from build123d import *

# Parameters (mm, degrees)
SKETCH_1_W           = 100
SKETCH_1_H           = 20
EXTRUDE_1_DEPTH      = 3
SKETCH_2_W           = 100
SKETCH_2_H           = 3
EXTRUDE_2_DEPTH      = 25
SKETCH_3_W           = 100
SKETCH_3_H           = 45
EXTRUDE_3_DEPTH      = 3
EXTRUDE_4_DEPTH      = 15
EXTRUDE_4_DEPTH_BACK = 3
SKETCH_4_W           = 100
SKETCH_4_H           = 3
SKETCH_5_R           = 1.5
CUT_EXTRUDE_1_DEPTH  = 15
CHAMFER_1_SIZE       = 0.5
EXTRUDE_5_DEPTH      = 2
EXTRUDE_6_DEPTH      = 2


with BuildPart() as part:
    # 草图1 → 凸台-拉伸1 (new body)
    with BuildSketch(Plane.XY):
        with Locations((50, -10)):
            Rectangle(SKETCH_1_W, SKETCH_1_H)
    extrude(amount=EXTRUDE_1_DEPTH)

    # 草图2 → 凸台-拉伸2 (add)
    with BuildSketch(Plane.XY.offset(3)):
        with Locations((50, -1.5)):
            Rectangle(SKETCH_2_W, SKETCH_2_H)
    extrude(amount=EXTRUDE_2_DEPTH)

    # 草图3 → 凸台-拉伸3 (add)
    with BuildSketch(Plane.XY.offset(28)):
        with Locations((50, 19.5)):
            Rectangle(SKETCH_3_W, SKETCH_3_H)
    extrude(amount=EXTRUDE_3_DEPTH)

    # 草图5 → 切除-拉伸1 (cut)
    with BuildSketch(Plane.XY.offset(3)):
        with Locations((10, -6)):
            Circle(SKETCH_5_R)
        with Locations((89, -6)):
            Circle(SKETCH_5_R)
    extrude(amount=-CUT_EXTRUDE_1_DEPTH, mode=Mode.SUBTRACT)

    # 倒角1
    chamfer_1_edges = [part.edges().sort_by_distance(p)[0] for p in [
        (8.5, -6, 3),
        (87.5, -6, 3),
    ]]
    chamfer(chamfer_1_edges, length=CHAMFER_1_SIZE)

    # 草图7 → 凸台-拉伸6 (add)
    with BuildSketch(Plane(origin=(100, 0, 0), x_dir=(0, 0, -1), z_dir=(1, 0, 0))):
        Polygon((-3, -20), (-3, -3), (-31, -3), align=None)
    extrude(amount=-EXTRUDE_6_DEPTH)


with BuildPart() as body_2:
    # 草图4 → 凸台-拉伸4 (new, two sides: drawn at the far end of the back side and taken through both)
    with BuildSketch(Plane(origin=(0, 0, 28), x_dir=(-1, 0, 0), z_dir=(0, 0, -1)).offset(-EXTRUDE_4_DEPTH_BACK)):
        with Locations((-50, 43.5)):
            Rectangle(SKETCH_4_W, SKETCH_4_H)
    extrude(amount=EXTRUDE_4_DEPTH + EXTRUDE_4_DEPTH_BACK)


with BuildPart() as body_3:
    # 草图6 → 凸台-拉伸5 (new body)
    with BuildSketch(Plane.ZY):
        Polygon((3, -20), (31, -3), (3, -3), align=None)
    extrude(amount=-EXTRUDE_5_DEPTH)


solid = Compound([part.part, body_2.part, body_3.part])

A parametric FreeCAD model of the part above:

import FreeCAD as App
import Part
import Sketcher
from FreeCAD import Vector
Q = App.Units.Quantity


def edges_at(feature, points):
    """Names of the edges that pass closest to the given points."""
    edges = feature.Shape.Edges
    near = lambda p: min(range(len(edges)), key=lambda i: edges[i].distToShape(Part.Vertex(*p))[0])
    return sorted({f"Edge{near(p) + 1}" for p in points})


def add_polygon(sketch, points):
    """Adds a closed chain of lines whose ends are joined by coincident constraints."""
    first, n = sketch.GeometryCount, len(points)
    for a, b in zip(points, points[1:] + points[:1]):
        sketch.addGeometry(Part.LineSegment(App.Vector(*a, 0), App.Vector(*b, 0)), False)
    for i in range(n):
        sketch.addConstraint(Sketcher.Constraint("Coincident", first + i, 2, first + (i + 1) % n, 1))

doc = App.newDocument("Part")
body = doc.addObject("PartDesign::Body", "Body")

sketch1 = body.newObject("Sketcher::SketchObject", "Sketch")
sketch1.AttachmentSupport = (doc.getObject("XY_Plane"), [""])
sketch1.MapMode = "FlatFace"
add_polygon(sketch1, [(0, 0), (0, -20), (100, -20), (100, 0)])
sketch1.addConstraint([
    Sketcher.Constraint("Vertical", 0),
    Sketcher.Constraint("Horizontal", 1),
    Sketcher.Constraint("Vertical", 2),
    Sketcher.Constraint("Horizontal", 3),
    Sketcher.Constraint("Coincident", 3, 2, -1, 1),
    Sketcher.Constraint("DistanceX", 1, 1, 1, 2, Q("100 mm")),
    Sketcher.Constraint("DistanceY", 0, 2, 0, 1, Q("20 mm")),
])
pad1 = body.newObject("PartDesign::Pad", "Pad")
pad1.Profile = sketch1
pad1.Length = 3

sketch2 = body.newObject("Sketcher::SketchObject", "Sketch001")
sketch2.AttachmentSupport = (doc.getObject("XY_Plane"), [""])
sketch2.MapMode = "FlatFace"
sketch2.AttachmentOffset = App.Placement(Vector(0, 0, 3), App.Rotation())
add_polygon(sketch2, [(0, 0), (0, -3), (100, -3), (100, 0)])
sketch2.addConstraint([
    Sketcher.Constraint("Vertical", 0),
    Sketcher.Constraint("Horizontal", 1),
    Sketcher.Constraint("Vertical", 2),
    Sketcher.Constraint("Horizontal", 3),
    Sketcher.Constraint("Coincident", 3, 2, -1, 1),
    Sketcher.Constraint("DistanceX", 1, 1, 1, 2, Q("100 mm")),
    Sketcher.Constraint("DistanceY", 0, 2, 0, 1, Q("3 mm")),
])
pad2 = body.newObject("PartDesign::Pad", "Pad001")
pad2.Profile = sketch2
pad2.Length = 25

sketch3 = body.newObject("Sketcher::SketchObject", "Sketch002")
sketch3.AttachmentSupport = (doc.getObject("XY_Plane"), [""])
sketch3.MapMode = "FlatFace"
sketch3.AttachmentOffset = App.Placement(Vector(0, 0, 28), App.Rotation())
add_polygon(sketch3, [(0, 42), (0, -3), (100, -3), (100, 42)])
sketch3.addConstraint([
    Sketcher.Constraint("Vertical", 0),
    Sketcher.Constraint("Horizontal", 1),
    Sketcher.Constraint("Vertical", 2),
    Sketcher.Constraint("Horizontal", 3),
    Sketcher.Constraint("PointOnObject", 0, 2, -2),
    Sketcher.Constraint("DistanceX", 1, 1, 1, 2, Q("100 mm")),
    Sketcher.Constraint("DistanceY", 0, 2, 0, 1, Q("45 mm")),
    Sketcher.Constraint("DistanceY", 0, 2, -1, 1, Q("3 mm")),
])
pad3 = body.newObject("PartDesign::Pad", "Pad002")
pad3.Profile = sketch3
pad3.Length = 3

sketch4 = body.newObject("Sketcher::SketchObject", "Sketch003")
sketch4.AttachmentSupport = (doc.getObject("XY_Plane"), [""])
sketch4.MapMode = "FlatFace"
sketch4.AttachmentOffset = App.Placement(Vector(0, 0, 3), App.Rotation())
sketch4.addGeometry([
    Part.Circle(Vector(10, -6, 0), Vector(0, 0, 1), 1.5),
    Part.Circle(Vector(89, -6, 0), Vector(0, 0, 1), 1.5),
], False)
sketch4.addConstraint([
    Sketcher.Constraint("Equal", 0, 1),
    Sketcher.Constraint("Horizontal", 0, 3, 1, 3),
    Sketcher.Constraint("Diameter", 0, Q("3 mm")),
    Sketcher.Constraint("DistanceX", -1, 1, 0, 3, Q("10 mm")),
    Sketcher.Constraint("DistanceY", 0, 3, -1, 1, Q("6 mm")),
    Sketcher.Constraint("DistanceX", -1, 1, 1, 3, Q("89 mm")),
])
pocket1 = body.newObject("PartDesign::Pocket", "Pocket")
pocket1.Profile = sketch4
pocket1.Length = 15
doc.recompute()

chamfer = body.newObject("PartDesign::Chamfer", "Chamfer")
chamfer.Base = (pocket1, edges_at(pocket1, [(8.5, -6, 3), (87.5, -6, 3)]))
chamfer.Size = 0.5

sketch5 = body.newObject("Sketcher::SketchObject", "Sketch004")
sketch5.AttachmentSupport = (doc.getObject("YZ_Plane"), [""])
sketch5.MapMode = "FlatFace"
sketch5.AttachmentOffset = App.Placement(Vector(0, 0, 100), App.Rotation())
add_polygon(sketch5, [(-20, 3), (-3, 3), (-3, 31)])
sketch5.addConstraint([
    Sketcher.Constraint("Horizontal", 0),
    Sketcher.Constraint("Vertical", 1),
    Sketcher.Constraint("DistanceX", 0, 1, 0, 2, Q("17 mm")),
    Sketcher.Constraint("DistanceY", 1, 1, 1, 2, Q("28 mm")),
    Sketcher.Constraint("DistanceX", 0, 2, -1, 1, Q("3 mm")),
    Sketcher.Constraint("DistanceY", -1, 1, 0, 2, Q("3 mm")),
])
pad4 = body.newObject("PartDesign::Pad", "Pad003")
pad4.Profile = sketch5
pad4.Length = 2
pad4.Reversed = True
body2 = doc.addObject("PartDesign::Body", "Body001")

sketch6 = body2.newObject("Sketcher::SketchObject", "Sketch005")
sketch6.AttachmentSupport = (doc.getObject("XY_Plane001"), [""])
sketch6.MapMode = "FlatFace"
sketch6.AttachmentOffset = App.Placement(Vector(0, 0, 28), App.Rotation())
add_polygon(sketch6, [(100, 45), (100, 42), (0, 42), (0, 45)])
sketch6.addConstraint([
    Sketcher.Constraint("Vertical", 0),
    Sketcher.Constraint("Horizontal", 1),
    Sketcher.Constraint("Vertical", 2),
    Sketcher.Constraint("Horizontal", 3),
    Sketcher.Constraint("PointOnObject", 1, 2, -2),
    Sketcher.Constraint("DistanceX", 1, 2, 1, 1, Q("100 mm")),
    Sketcher.Constraint("DistanceY", 0, 2, 0, 1, Q("3 mm")),
    Sketcher.Constraint("DistanceY", -1, 1, 0, 2, Q("42 mm")),
])
pad5 = body2.newObject("PartDesign::Pad", "Pad004")
pad5.Profile = sketch6
pad5.Type = "TwoLengths"
pad5.Length = 15
pad5.Length2 = 3
pad5.Reversed = True
body3 = doc.addObject("PartDesign::Body", "Body002")

sketch7 = body3.newObject("Sketcher::SketchObject", "Sketch006")
sketch7.AttachmentSupport = (doc.getObject("YZ_Plane002"), [""])
sketch7.MapMode = "FlatFace"
add_polygon(sketch7, [(-20, 3), (-3, 31), (-3, 3)])
sketch7.addConstraint([
    Sketcher.Constraint("Vertical", 1),
    Sketcher.Constraint("Horizontal", 2),
    Sketcher.Constraint("DistanceX", 2, 2, 2, 1, Q("17 mm")),
    Sketcher.Constraint("DistanceY", 1, 2, 1, 1, Q("28 mm")),
    Sketcher.Constraint("DistanceX", 0, 2, -1, 1, Q("3 mm")),
    Sketcher.Constraint("DistanceY", -1, 1, 0, 2, Q("31 mm")),
])
pad6 = body3.newObject("PartDesign::Pad", "Pad005")
pad6.Profile = sketch7
pad6.Length = 2

doc.recompute()
